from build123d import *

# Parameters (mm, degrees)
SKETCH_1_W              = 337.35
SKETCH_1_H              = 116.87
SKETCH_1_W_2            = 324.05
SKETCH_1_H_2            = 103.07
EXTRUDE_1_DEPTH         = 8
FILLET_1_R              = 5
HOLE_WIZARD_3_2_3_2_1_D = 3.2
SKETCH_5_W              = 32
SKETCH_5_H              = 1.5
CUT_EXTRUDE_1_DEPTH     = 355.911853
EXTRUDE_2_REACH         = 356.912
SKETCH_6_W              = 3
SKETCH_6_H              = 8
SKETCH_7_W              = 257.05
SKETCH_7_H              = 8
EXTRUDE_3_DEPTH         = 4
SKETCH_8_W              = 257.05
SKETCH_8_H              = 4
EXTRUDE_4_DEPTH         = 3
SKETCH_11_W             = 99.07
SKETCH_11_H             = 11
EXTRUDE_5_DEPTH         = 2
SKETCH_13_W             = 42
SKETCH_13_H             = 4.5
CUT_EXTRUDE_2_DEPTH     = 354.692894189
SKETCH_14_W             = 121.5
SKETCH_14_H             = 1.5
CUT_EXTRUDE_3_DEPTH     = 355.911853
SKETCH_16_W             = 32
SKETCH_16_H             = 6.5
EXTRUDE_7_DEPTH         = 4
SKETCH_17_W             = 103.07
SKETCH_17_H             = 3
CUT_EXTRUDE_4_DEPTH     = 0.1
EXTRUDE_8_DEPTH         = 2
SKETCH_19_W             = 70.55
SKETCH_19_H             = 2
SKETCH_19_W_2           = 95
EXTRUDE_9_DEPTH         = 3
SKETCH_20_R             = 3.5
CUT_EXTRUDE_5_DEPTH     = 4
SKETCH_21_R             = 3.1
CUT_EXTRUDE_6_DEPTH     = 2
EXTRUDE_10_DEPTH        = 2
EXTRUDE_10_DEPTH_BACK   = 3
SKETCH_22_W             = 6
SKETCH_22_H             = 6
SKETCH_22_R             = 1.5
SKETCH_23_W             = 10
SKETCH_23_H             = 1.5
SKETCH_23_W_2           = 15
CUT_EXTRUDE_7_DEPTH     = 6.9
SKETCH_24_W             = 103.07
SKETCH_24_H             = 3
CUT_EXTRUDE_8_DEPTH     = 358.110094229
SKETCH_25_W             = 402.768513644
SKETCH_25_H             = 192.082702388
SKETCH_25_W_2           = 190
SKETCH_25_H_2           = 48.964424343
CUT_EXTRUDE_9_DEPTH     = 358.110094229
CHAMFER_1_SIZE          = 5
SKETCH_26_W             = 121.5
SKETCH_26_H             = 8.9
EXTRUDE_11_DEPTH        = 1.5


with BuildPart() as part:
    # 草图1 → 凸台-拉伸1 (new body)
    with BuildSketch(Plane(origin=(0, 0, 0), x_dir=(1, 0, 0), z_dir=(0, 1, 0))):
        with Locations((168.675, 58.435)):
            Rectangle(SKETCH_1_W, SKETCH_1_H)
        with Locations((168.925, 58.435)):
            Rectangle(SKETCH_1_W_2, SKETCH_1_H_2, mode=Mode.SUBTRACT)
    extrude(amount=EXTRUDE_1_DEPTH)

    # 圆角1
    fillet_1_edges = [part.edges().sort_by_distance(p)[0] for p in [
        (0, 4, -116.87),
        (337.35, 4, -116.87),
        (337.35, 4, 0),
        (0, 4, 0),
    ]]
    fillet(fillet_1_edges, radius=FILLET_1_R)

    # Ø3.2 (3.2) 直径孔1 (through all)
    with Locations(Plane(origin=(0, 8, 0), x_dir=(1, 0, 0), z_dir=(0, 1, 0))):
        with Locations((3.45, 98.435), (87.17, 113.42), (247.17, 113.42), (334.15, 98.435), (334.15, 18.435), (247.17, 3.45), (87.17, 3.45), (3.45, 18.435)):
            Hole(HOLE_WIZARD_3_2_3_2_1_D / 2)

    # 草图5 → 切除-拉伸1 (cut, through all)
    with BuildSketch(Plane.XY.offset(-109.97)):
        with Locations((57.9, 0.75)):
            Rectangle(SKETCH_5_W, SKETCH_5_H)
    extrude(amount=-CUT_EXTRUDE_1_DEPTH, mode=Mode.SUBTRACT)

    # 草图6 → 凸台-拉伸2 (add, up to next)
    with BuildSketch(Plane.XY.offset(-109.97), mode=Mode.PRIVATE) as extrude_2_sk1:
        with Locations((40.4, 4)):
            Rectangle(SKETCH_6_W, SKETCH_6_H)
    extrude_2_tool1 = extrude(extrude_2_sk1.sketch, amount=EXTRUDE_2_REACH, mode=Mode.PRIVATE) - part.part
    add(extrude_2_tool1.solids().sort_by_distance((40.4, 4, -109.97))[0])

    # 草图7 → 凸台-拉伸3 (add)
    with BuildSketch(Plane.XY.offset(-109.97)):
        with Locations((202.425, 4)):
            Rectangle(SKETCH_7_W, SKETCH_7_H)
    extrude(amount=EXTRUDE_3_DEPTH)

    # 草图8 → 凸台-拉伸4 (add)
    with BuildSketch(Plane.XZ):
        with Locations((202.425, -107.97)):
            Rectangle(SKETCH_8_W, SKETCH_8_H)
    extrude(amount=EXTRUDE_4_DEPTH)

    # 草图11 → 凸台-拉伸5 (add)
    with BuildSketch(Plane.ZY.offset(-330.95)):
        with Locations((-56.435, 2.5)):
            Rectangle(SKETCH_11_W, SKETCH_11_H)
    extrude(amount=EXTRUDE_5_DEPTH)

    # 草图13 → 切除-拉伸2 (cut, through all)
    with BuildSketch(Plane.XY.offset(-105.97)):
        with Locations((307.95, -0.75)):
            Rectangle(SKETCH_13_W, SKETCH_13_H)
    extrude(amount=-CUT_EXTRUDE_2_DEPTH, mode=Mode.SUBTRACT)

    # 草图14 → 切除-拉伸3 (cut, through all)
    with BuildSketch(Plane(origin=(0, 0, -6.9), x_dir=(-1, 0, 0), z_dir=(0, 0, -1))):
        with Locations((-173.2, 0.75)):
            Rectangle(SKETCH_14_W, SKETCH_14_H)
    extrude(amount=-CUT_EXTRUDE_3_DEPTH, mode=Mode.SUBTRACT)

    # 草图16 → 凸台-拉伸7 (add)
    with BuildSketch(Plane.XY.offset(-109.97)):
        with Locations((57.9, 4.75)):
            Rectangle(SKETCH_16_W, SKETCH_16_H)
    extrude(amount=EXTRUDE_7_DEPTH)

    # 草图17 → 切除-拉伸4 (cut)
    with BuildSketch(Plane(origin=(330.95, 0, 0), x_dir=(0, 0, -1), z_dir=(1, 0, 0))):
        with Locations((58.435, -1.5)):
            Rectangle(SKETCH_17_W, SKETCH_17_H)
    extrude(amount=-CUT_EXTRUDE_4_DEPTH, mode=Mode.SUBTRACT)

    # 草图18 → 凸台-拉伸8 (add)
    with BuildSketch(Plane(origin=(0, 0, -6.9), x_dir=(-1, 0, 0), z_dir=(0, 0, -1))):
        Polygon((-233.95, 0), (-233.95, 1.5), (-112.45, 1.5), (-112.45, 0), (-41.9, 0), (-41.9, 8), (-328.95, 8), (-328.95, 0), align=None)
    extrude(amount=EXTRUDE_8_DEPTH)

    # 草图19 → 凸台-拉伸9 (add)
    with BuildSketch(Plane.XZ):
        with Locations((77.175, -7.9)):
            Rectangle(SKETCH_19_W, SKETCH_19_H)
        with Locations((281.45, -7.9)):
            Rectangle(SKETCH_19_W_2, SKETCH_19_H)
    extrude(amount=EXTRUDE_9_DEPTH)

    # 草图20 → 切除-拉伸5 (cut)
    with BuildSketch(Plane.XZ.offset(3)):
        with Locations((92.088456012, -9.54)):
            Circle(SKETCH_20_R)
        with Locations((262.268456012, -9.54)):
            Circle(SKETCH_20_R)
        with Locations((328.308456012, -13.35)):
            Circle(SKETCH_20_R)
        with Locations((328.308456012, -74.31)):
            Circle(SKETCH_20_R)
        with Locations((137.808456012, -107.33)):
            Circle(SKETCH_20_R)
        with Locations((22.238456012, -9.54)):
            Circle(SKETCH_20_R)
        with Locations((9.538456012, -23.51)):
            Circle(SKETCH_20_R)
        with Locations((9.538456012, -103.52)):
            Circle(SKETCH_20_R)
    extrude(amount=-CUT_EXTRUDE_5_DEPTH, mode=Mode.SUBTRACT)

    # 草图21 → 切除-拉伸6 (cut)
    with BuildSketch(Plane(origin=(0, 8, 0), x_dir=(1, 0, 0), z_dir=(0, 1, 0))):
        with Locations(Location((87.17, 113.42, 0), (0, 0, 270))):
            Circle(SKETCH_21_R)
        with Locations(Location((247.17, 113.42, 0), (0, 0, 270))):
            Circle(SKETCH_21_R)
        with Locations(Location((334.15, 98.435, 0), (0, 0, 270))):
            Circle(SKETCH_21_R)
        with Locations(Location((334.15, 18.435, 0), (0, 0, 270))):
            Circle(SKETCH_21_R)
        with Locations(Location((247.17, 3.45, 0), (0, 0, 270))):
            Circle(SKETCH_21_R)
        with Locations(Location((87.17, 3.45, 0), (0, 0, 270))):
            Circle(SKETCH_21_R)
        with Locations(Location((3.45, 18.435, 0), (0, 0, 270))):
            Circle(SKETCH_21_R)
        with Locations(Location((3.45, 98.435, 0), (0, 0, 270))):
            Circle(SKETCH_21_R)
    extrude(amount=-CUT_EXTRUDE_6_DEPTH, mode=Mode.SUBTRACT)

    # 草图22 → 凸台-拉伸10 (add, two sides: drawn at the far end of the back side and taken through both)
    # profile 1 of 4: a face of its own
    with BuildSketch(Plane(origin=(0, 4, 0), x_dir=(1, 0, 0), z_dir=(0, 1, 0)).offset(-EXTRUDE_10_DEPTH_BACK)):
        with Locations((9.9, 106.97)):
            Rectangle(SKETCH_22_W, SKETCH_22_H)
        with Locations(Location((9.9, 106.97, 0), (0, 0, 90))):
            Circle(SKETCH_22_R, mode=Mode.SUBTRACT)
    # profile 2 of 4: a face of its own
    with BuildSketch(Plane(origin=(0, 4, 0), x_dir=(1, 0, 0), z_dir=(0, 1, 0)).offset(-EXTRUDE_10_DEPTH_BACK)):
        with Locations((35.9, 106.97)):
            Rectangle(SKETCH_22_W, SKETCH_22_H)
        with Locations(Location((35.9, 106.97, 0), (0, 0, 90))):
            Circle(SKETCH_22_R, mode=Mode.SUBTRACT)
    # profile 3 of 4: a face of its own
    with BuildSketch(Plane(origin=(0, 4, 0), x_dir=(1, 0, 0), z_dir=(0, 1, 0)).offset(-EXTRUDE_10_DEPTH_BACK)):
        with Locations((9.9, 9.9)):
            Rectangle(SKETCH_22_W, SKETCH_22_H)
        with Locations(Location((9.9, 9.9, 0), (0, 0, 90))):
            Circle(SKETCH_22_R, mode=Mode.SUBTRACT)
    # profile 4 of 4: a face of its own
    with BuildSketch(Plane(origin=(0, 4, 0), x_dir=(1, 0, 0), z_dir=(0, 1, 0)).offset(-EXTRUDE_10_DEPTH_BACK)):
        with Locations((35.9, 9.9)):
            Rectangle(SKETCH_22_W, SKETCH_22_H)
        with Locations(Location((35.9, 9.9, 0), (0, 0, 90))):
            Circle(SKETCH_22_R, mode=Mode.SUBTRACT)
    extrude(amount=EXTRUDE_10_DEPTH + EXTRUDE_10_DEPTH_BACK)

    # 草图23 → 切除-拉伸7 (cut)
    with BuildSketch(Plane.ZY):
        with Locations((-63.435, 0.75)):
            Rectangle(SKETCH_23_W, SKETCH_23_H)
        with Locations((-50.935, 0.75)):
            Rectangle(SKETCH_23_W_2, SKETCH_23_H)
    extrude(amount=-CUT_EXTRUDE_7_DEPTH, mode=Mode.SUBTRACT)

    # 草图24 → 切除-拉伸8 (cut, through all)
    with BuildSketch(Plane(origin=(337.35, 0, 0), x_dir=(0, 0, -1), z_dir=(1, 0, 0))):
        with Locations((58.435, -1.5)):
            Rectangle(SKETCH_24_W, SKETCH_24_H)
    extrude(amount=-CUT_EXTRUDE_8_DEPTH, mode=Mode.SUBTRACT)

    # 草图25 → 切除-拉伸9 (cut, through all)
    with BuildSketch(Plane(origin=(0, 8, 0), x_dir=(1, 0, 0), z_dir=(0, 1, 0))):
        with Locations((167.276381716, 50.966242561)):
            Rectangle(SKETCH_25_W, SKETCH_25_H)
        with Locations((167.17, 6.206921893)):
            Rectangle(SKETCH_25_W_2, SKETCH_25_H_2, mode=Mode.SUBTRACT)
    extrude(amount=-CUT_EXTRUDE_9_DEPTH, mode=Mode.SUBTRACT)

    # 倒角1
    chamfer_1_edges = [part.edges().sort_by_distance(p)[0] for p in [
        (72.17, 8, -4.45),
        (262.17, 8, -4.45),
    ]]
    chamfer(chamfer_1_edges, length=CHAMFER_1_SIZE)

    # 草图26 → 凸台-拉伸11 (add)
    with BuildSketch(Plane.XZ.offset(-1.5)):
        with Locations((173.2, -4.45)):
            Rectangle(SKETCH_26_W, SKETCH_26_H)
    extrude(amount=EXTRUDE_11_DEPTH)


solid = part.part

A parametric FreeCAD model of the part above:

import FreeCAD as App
import Part
import Sketcher

V = App.Vector


def edges_at(feature, points):
    """Names of the edges that pass closest to the given points."""
    edges = feature.Shape.Edges
    near = lambda p: min(range(len(edges)), key=lambda i: edges[i].distToShape(Part.Vertex(*p))[0])
    return sorted({f"Edge{near(p) + 1}" for p in points})

doc = App.newDocument("Part")
body = doc.addObject("PartDesign::Body", "Body")

# Sketch on XZ plane
sketch1 = body.newObject("Sketcher::SketchObject", "Sketch")
sketch1.AttachmentSupport = (doc.getObject("XZ_Plane"), [""])
sketch1.MapMode = "FlatFace"
sketch1.addGeometry(Part.LineSegment(V(0, -116.87, 0), V(0, 0, 0)), False)
sketch1.addGeometry(Part.LineSegment(V(0, 0, 0), V(337.35, 0, 0)), False)
sketch1.addGeometry(Part.LineSegment(V(337.35, 0, 0), V(337.35, -116.87, 0)), False)
sketch1.addGeometry(Part.LineSegment(V(337.35, -116.87, 0), V(0, -116.87, 0)), False)
sketch1.addGeometry(Part.LineSegment(V(330.95, -6.9, 0), V(6.9, -6.9, 0)), False)
sketch1.addGeometry(Part.LineSegment(V(6.9, -6.9, 0), V(6.9, -109.97, 0)), False)
sketch1.addGeometry(Part.LineSegment(V(6.9, -109.97, 0), V(330.95, -109.97, 0)), False)
sketch1.addGeometry(Part.LineSegment(V(330.95, -109.97, 0), V(330.95, -6.9, 0)), False)
sketch1.addConstraint(Sketcher.Constraint("Coincident", 0, 2, 1, 1))
sketch1.addConstraint(Sketcher.Constraint("Coincident", 1, 2, 2, 1))
sketch1.addConstraint(Sketcher.Constraint("Coincident", 2, 2, 3, 1))
sketch1.addConstraint(Sketcher.Constraint("Coincident", 3, 2, 0, 1))
sketch1.addConstraint(Sketcher.Constraint("Coincident", 4, 2, 5, 1))
sketch1.addConstraint(Sketcher.Constraint("Coincident", 5, 2, 6, 1))
sketch1.addConstraint(Sketcher.Constraint("Coincident", 6, 2, 7, 1))
sketch1.addConstraint(Sketcher.Constraint("Coincident", 7, 2, 4, 1))
sketch1.addConstraint(Sketcher.Constraint("Vertical", 0))
sketch1.addConstraint(Sketcher.Constraint("Horizontal", 1))
sketch1.addConstraint(Sketcher.Constraint("Vertical", 2))
sketch1.addConstraint(Sketcher.Constraint("Horizontal", 3))
sketch1.addConstraint(Sketcher.Constraint("Horizontal", 4))
sketch1.addConstraint(Sketcher.Constraint("Vertical", 5))
sketch1.addConstraint(Sketcher.Constraint("Horizontal", 6))
sketch1.addConstraint(Sketcher.Constraint("Vertical", 7))
sketch1.addConstraint(Sketcher.Constraint("Coincident", 0, 2, -1, 1))
sketch1.addConstraint(Sketcher.Constraint("DistanceX", 1, 1, 1, 2, 337.35))
sketch1.addConstraint(Sketcher.Constraint("DistanceX", 4, 2, 4, 1, 324.05))
sketch1.addConstraint(Sketcher.Constraint("DistanceY", 0, 1, 0, 2, 116.87))
sketch1.addConstraint(Sketcher.Constraint("DistanceY", 5, 2, 5, 1, 103.07))
sketch1.addConstraint(Sketcher.Constraint("DistanceX", -1, 1, 4, 2, 6.9))
sketch1.addConstraint(Sketcher.Constraint("DistanceY", 4, 2, -1, 1, 6.9))
pad1 = body.newObject("PartDesign::Pad", "Pad")
pad1.Profile = sketch1
pad1.Length = 8
pad1.Reversed = True
doc.recompute()

fillet = body.newObject("PartDesign::Fillet", "Fillet")
fillet.Base = (pad1, edges_at(pad1, [
    (0, 4, -116.87),
    (337.35, 4, -116.87),
    (337.35, 4, 0),
    (0, 4, 0),
]))
fillet.Radius = 5

# Sketch on XZ plane
sketch2 = body.newObject("Sketcher::SketchObject", "Sketch001")
sketch2.AttachmentSupport = (doc.getObject("XZ_Plane"), [""])
sketch2.MapMode = "FlatFace"
sketch2.AttachmentOffset = App.Placement(V(0, 0, -8), App.Rotation())
sketch2.addGeometry(Part.Circle(V(3.45, -98.435, 0), V(0, 0, 1), 1.6), False)
sketch2.addGeometry(Part.Circle(V(87.17, -113.42, 0), V(0, 0, 1), 1.6), False)
sketch2.addGeometry(Part.Circle(V(247.17, -113.42, 0), V(0, 0, 1), 1.6), False)
sketch2.addGeometry(Part.Circle(V(334.15, -98.435, 0), V(0, 0, 1), 1.6), False)
sketch2.addGeometry(Part.Circle(V(334.15, -18.435, 0), V(0, 0, 1), 1.6), False)
sketch2.addGeometry(Part.Circle(V(247.17, -3.45, 0), V(0, 0, 1), 1.6), False)
sketch2.addGeometry(Part.Circle(V(87.17, -3.45, 0), V(0, 0, 1), 1.6), False)
sketch2.addGeometry(Part.Circle(V(3.45, -18.435, 0), V(0, 0, 1), 1.6), False)
sketch2.addConstraint(Sketcher.Constraint("Equal", 0, 1))
sketch2.addConstraint(Sketcher.Constraint("Equal", 1, 2))
sketch2.addConstraint(Sketcher.Constraint("Equal", 2, 3))
sketch2.addConstraint(Sketcher.Constraint("Equal", 3, 4))
sketch2.addConstraint(Sketcher.Constraint("Equal", 4, 5))
sketch2.addConstraint(Sketcher.Constraint("Equal", 5, 6))
sketch2.addConstraint(Sketcher.Constraint("Equal", 6, 7))
sketch2.addConstraint(Sketcher.Constraint("Horizontal", 1, 3, 2, 3))
sketch2.addConstraint(Sketcher.Constraint("Horizontal", 0, 3, 3, 3))
sketch2.addConstraint(Sketcher.Constraint("Horizontal", 5, 3, 6, 3))
sketch2.addConstraint(Sketcher.Constraint("Horizontal", 4, 3, 7, 3))
sketch2.addConstraint(Sketcher.Constraint("Vertical", 3, 3, 4, 3))
sketch2.addConstraint(Sketcher.Constraint("Vertical", 2, 3, 5, 3))
sketch2.addConstraint(Sketcher.Constraint("Vertical", 1, 3, 6, 3))
sketch2.addConstraint(Sketcher.Constraint("Vertical", 0, 3, 7, 3))
sketch2.addConstraint(Sketcher.Constraint("Diameter", 0, 3.2))
sketch2.addConstraint(Sketcher.Constraint("DistanceX", 1, 3, 2, 3, 160.0))
sketch2.addConstraint(Sketcher.Constraint("DistanceY", 3, 3, 4, 3, 80.0))
sketch2.addConstraint(Sketcher.Constraint("DistanceX", 0, 3, 3, 3, 330.7))
sketch2.addConstraint(Sketcher.Constraint("DistanceX", -1, 1, 0, 3, 3.45))
sketch2.addConstraint(Sketcher.Constraint("DistanceX", -1, 1, 1, 3, 87.17))
sketch2.addConstraint(Sketcher.Constraint("DistanceY", 1, 3, -1, 1, 113.42))
sketch2.addConstraint(Sketcher.Constraint("DistanceY", 5, 3, -1, 1, 3.45))
sketch2.addConstraint(Sketcher.Constraint("DistanceY", 0, 3, -1, 1, 98.435))
doc.recompute()
hole = body.newObject("PartDesign::Hole", "Hole")
hole.Profile = sketch2
hole.ThreadType = "None"
hole.Diameter = 3.2
hole.DepthType = "ThroughAll"
hole.Reversed = True

# Sketch on XY plane
sketch3 = body.newObject("Sketcher::SketchObject", "Sketch002")
sketch3.AttachmentSupport = (doc.getObject("XY_Plane"), [""])
sketch3.MapMode = "FlatFace"
sketch3.AttachmentOffset = App.Placement(V(0, 0, -109.97), App.Rotation())
sketch3.addGeometry(Part.LineSegment(V(41.9, 1.5, 0), V(41.9, 0, 0)), False)
sketch3.addGeometry(Part.LineSegment(V(41.9, 0, 0), V(73.9, 0, 0)), False)
sketch3.addGeometry(Part.LineSegment(V(73.9, 0, 0), V(73.9, 1.5, 0)), False)
sketch3.addGeometry(Part.LineSegment(V(73.9, 1.5, 0), V(41.9, 1.5, 0)), False)
sketch3.addConstraint(Sketcher.Constraint("Coincident", 0, 2, 1, 1))
sketch3.addConstraint(Sketcher.Constraint("Coincident", 1, 2, 2, 1))
sketch3.addConstraint(Sketcher.Constraint("Coincident", 2, 2, 3, 1))
sketch3.addConstraint(Sketcher.Constraint("Coincident", 3, 2, 0, 1))
sketch3.addConstraint(Sketcher.Constraint("Vertical", 0))
sketch3.addConstraint(Sketcher.Constraint("Horizontal", 1))
sketch3.addConstraint(Sketcher.Constraint("Vertical", 2))
sketch3.addConstraint(Sketcher.Constraint("Horizontal", 3))
sketch3.addConstraint(Sketcher.Constraint("PointOnObject", 0, 2, -1))
sketch3.addConstraint(Sketcher.Constraint("DistanceX", 1, 1, 1, 2, 32.0))
sketch3.addConstraint(Sketcher.Constraint("DistanceY", 0, 2, 0, 1, 1.5))
sketch3.addConstraint(Sketcher.Constraint("DistanceX", -1, 1, 0, 2, 41.9))
pocket1 = body.newObject("PartDesign::Pocket", "Pocket")
pocket1.Profile = sketch3
pocket1.Type = "ThroughAll"

# Sketch on XY plane
sketch4 = body.newObject("Sketcher::SketchObject", "Sketch003")
sketch4.AttachmentSupport = (doc.getObject("XY_Plane"), [""])
sketch4.MapMode = "FlatFace"
sketch4.AttachmentOffset = App.Placement(V(0, 0, -109.97), App.Rotation())
sketch4.addGeometry(Part.LineSegment(V(38.9, 8, 0), V(38.9, 0, 0)), False)
sketch4.addGeometry(Part.LineSegment(V(38.9, 0, 0), V(41.9, 0, 0)), False)
sketch4.addGeometry(Part.LineSegment(V(41.9, 0, 0), V(41.9, 8, 0)), False)
sketch4.addGeometry(Part.LineSegment(V(41.9, 8, 0), V(38.9, 8, 0)), False)
sketch4.addConstraint(Sketcher.Constraint("Coincident", 0, 2, 1, 1))
sketch4.addConstraint(Sketcher.Constraint("Coincident", 1, 2, 2, 1))
sketch4.addConstraint(Sketcher.Constraint("Coincident", 2, 2, 3, 1))
sketch4.addConstraint(Sketcher.Constraint("Coincident", 3, 2, 0, 1))
sketch4.addConstraint(Sketcher.Constraint("Vertical", 0))
sketch4.addConstraint(Sketcher.Constraint("Horizontal", 1))
sketch4.addConstraint(Sketcher.Constraint("Vertical", 2))
sketch4.addConstraint(Sketcher.Constraint("Horizontal", 3))
sketch4.addConstraint(Sketcher.Constraint("PointOnObject", 0, 2, -1))
sketch4.addConstraint(Sketcher.Constraint("DistanceX", 1, 1, 1, 2, 3.0))
sketch4.addConstraint(Sketcher.Constraint("DistanceY", 0, 2, 0, 1, 8.0))
sketch4.addConstraint(Sketcher.Constraint("DistanceX", -1, 1, 0, 2, 38.9))
pad2 = body.newObject("PartDesign::Pad", "Pad001")
pad2.Profile = sketch4
pad2.Type = "UpToFirst"

# Sketch on XY plane
sketch5 = body.newObject("Sketcher::SketchObject", "Sketch004")
sketch5.AttachmentSupport = (doc.getObject("XY_Plane"), [""])
sketch5.MapMode = "FlatFace"
sketch5.AttachmentOffset = App.Placement(V(0, 0, -109.97), App.Rotation())
sketch5.addGeometry(Part.LineSegment(V(73.9, 8, 0), V(73.9, 0, 0)), False)
sketch5.addGeometry(Part.LineSegment(V(73.9, 0, 0), V(330.95, 0, 0)), False)
sketch5.addGeometry(Part.LineSegment(V(330.95, 0, 0), V(330.95, 8, 0)), False)
sketch5.addGeometry(Part.LineSegment(V(330.95, 8, 0), V(73.9, 8, 0)), False)
sketch5.addConstraint(Sketcher.Constraint("Coincident", 0, 2, 1, 1))
sketch5.addConstraint(Sketcher.Constraint("Coincident", 1, 2, 2, 1))
sketch5.addConstraint(Sketcher.Constraint("Coincident", 2, 2, 3, 1))
sketch5.addConstraint(Sketcher.Constraint("Coincident", 3, 2, 0, 1))
sketch5.addConstraint(Sketcher.Constraint("Vertical", 0))
sketch5.addConstraint(Sketcher.Constraint("Horizontal", 1))
sketch5.addConstraint(Sketcher.Constraint("Vertical", 2))
sketch5.addConstraint(Sketcher.Constraint("Horizontal", 3))
sketch5.addConstraint(Sketcher.Constraint("PointOnObject", 0, 2, -1))
sketch5.addConstraint(Sketcher.Constraint("DistanceY", 0, 2, 0, 1, 8.0))
sketch5.addConstraint(Sketcher.Constraint("DistanceX", 1, 1, 1, 2, 257.05))
sketch5.addConstraint(Sketcher.Constraint("DistanceX", -1, 1, 0, 2, 73.9))
pad3 = body.newObject("PartDesign::Pad", "Pad002")
pad3.Profile = sketch5
pad3.Length = 4

# Sketch on XZ plane
sketch6 = body.newObject("Sketcher::SketchObject", "Sketch005")
sketch6.AttachmentSupport = (doc.getObject("XZ_Plane"), [""])
sketch6.MapMode = "FlatFace"
sketch6.addGeometry(Part.LineSegment(V(73.9, -105.97, 0), V(73.9, -109.97, 0)), False)
sketch6.addGeometry(Part.LineSegment(V(73.9, -109.97, 0), V(330.95, -109.97, 0)), False)
sketch6.addGeometry(Part.LineSegment(V(330.95, -109.97, 0), V(330.95, -105.97, 0)), False)
sketch6.addGeometry(Part.LineSegment(V(330.95, -105.97, 0), V(73.9, -105.97, 0)), False)
sketch6.addConstraint(Sketcher.Constraint("Coincident", 0, 2, 1, 1))
sketch6.addConstraint(Sketcher.Constraint("Coincident", 1, 2, 2, 1))
sketch6.addConstraint(Sketcher.Constraint("Coincident", 2, 2, 3, 1))
sketch6.addConstraint(Sketcher.Constraint("Coincident", 3, 2, 0, 1))
sketch6.addConstraint(Sketcher.Constraint("Vertical", 0))
sketch6.addConstraint(Sketcher.Constraint("Horizontal", 1))
sketch6.addConstraint(Sketcher.Constraint("Vertical", 2))
sketch6.addConstraint(Sketcher.Constraint("Horizontal", 3))
sketch6.addConstraint(Sketcher.Constraint("DistanceY", 0, 2, 0, 1, 4.0))
sketch6.addConstraint(Sketcher.Constraint("DistanceX", 1, 1, 1, 2, 257.05))
sketch6.addConstraint(Sketcher.Constraint("DistanceX", -1, 1, 0, 2, 73.9))
sketch6.addConstraint(Sketcher.Constraint("DistanceY", 0, 2, -1, 1, 109.97))
pad4 = body.newObject("PartDesign::Pad", "Pad003")
pad4.Profile = sketch6
pad4.Length = 3

# Sketch on YZ plane
sketch7 = body.newObject("Sketcher::SketchObject", "Sketch006")
sketch7.AttachmentSupport = (doc.getObject("YZ_Plane"), [""])
sketch7.MapMode = "FlatFace"
sketch7.AttachmentOffset = App.Placement(V(0, 0, 330.95), App.Rotation())
sketch7.addGeometry(Part.LineSegment(V(8, -105.97, 0), V(-3, -105.97, 0)), False)
sketch7.addGeometry(Part.LineSegment(V(-3, -105.97, 0), V(-3, -6.9, 0)), False)
sketch7.addGeometry(Part.LineSegment(V(-3, -6.9, 0), V(8, -6.9, 0)), False)
sketch7.addGeometry(Part.LineSegment(V(8, -6.9, 0), V(8, -105.97, 0)), False)
sketch7.addConstraint(Sketcher.Constraint("Coincident", 0, 2, 1, 1))
sketch7.addConstraint(Sketcher.Constraint("Coincident", 1, 2, 2, 1))
sketch7.addConstraint(Sketcher.Constraint("Coincident", 2, 2, 3, 1))
sketch7.addConstraint(Sketcher.Constraint("Coincident", 3, 2, 0, 1))
sketch7.addConstraint(Sketcher.Constraint("Horizontal", 0))
sketch7.addConstraint(Sketcher.Constraint("Vertical", 1))
sketch7.addConstraint(Sketcher.Constraint("Horizontal", 2))
sketch7.addConstraint(Sketcher.Constraint("Vertical", 3))
sketch7.addConstraint(Sketcher.Constraint("DistanceX", 0, 2, 0, 1, 11.0))
sketch7.addConstraint(Sketcher.Constraint("DistanceX", 0, 2, -1, 1, 3.0))
sketch7.addConstraint(Sketcher.Constraint("DistanceY", 1, 1, 1, 2, 99.07))
sketch7.addConstraint(Sketcher.Constraint("DistanceY", 1, 2, -1, 1, 6.9))
pad5 = body.newObject("PartDesign::Pad", "Pad004")
pad5.Profile = sketch7
pad5.Length = 2
pad5.Reversed = True

# Sketch on XY plane
sketch8 = body.newObject("Sketcher::SketchObject", "Sketch007")
sketch8.AttachmentSupport = (doc.getObject("XY_Plane"), [""])
sketch8.MapMode = "FlatFace"
sketch8.AttachmentOffset = App.Placement(V(0, 0, -105.97), App.Rotation())
sketch8.addGeometry(Part.LineSegment(V(286.95, 1.5, 0), V(286.95, -3, 0)), False)
sketch8.addGeometry(Part.LineSegment(V(286.95, -3, 0), V(328.95, -3, 0)), False)
sketch8.addGeometry(Part.LineSegment(V(328.95, -3, 0), V(328.95, 1.5, 0)), False)
sketch8.addGeometry(Part.LineSegment(V(328.95, 1.5, 0), V(286.95, 1.5, 0)), False)
sketch8.addConstraint(Sketcher.Constraint("Coincident", 0, 2, 1, 1))
sketch8.addConstraint(Sketcher.Constraint("Coincident", 1, 2, 2, 1))
sketch8.addConstraint(Sketcher.Constraint("Coincident", 2, 2, 3, 1))
sketch8.addConstraint(Sketcher.Constraint("Coincident", 3, 2, 0, 1))
sketch8.addConstraint(Sketcher.Constraint("Vertical", 0))
sketch8.addConstraint(Sketcher.Constraint("Horizontal", 1))
sketch8.addConstraint(Sketcher.Constraint("Vertical", 2))
sketch8.addConstraint(Sketcher.Constraint("Horizontal", 3))
sketch8.addConstraint(Sketcher.Constraint("DistanceX", 1, 1, 1, 2, 42.0))
sketch8.addConstraint(Sketcher.Constraint("DistanceY", 0, 2, 0, 1, 4.5))
sketch8.addConstraint(Sketcher.Constraint("DistanceY", 0, 2, -1, 1, 3.0))
sketch8.addConstraint(Sketcher.Constraint("DistanceX", -1, 1, 0, 2, 286.95))
pocket2 = body.newObject("PartDesign::Pocket", "Pocket001")
pocket2.Profile = sketch8
pocket2.Type = "ThroughAll"

# Sketch on XY plane
sketch9 = body.newObject("Sketcher::SketchObject", "Sketch008")
sketch9.AttachmentSupport = (doc.getObject("XY_Plane"), [""])
sketch9.MapMode = "FlatFace"
sketch9.AttachmentOffset = App.Placement(V(0, 0, -6.9), App.Rotation())
sketch9.addGeometry(Part.LineSegment(V(233.95, 1.5, 0), V(233.95, 0, 0)), False)
sketch9.addGeometry(Part.LineSegment(V(233.95, 0, 0), V(112.45, 0, 0)), False)
sketch9.addGeometry(Part.LineSegment(V(112.45, 0, 0), V(112.45, 1.5, 0)), False)
sketch9.addGeometry(Part.LineSegment(V(112.45, 1.5, 0), V(233.95, 1.5, 0)), False)
sketch9.addConstraint(Sketcher.Constraint("Coincident", 0, 2, 1, 1))
sketch9.addConstraint(Sketcher.Constraint("Coincident", 1, 2, 2, 1))
sketch9.addConstraint(Sketcher.Constraint("Coincident", 2, 2, 3, 1))
sketch9.addConstraint(Sketcher.Constraint("Coincident", 3, 2, 0, 1))
sketch9.addConstraint(Sketcher.Constraint("Vertical", 0))
sketch9.addConstraint(Sketcher.Constraint("Horizontal", 1))
sketch9.addConstraint(Sketcher.Constraint("Vertical", 2))
sketch9.addConstraint(Sketcher.Constraint("Horizontal", 3))
sketch9.addConstraint(Sketcher.Constraint("PointOnObject", 0, 2, -1))
sketch9.addConstraint(Sketcher.Constraint("DistanceX", 1, 2, 1, 1, 121.5))
sketch9.addConstraint(Sketcher.Constraint("DistanceY", 0, 2, 0, 1, 1.5))
sketch9.addConstraint(Sketcher.Constraint("DistanceX", -1, 1, 0, 2, 233.95))
pocket3 = body.newObject("PartDesign::Pocket", "Pocket002")
pocket3.Profile = sketch9
pocket3.Type = "ThroughAll"
pocket3.Reversed = True

# Sketch on XY plane
sketch10 = body.newObject("Sketcher::SketchObject", "Sketch009")
sketch10.AttachmentSupport = (doc.getObject("XY_Plane"), [""])
sketch10.MapMode = "FlatFace"
sketch10.AttachmentOffset = App.Placement(V(0, 0, -109.97), App.Rotation())
sketch10.addGeometry(Part.LineSegment(V(41.9, 8, 0), V(41.9, 1.5, 0)), False)
sketch10.addGeometry(Part.LineSegment(V(41.9, 1.5, 0), V(73.9, 1.5, 0)), False)
sketch10.addGeometry(Part.LineSegment(V(73.9, 1.5, 0), V(73.9, 8, 0)), False)
sketch10.addGeometry(Part.LineSegment(V(73.9, 8, 0), V(41.9, 8, 0)), False)
sketch10.addConstraint(Sketcher.Constraint("Coincident", 0, 2, 1, 1))
sketch10.addConstraint(Sketcher.Constraint("Coincident", 1, 2, 2, 1))
sketch10.addConstraint(Sketcher.Constraint("Coincident", 2, 2, 3, 1))
sketch10.addConstraint(Sketcher.Constraint("Coincident", 3, 2, 0, 1))
sketch10.addConstraint(Sketcher.Constraint("Vertical", 0))
sketch10.addConstraint(Sketcher.Constraint("Horizontal", 1))
sketch10.addConstraint(Sketcher.Constraint("Vertical", 2))
sketch10.addConstraint(Sketcher.Constraint("Horizontal", 3))
sketch10.addConstraint(Sketcher.Constraint("DistanceX", 1, 1, 1, 2, 32.0))
sketch10.addConstraint(Sketcher.Constraint("DistanceY", 0, 2, 0, 1, 6.5))
sketch10.addConstraint(Sketcher.Constraint("DistanceY", -1, 1, 2, 2, 8.0))
sketch10.addConstraint(Sketcher.Constraint("DistanceX", -1, 1, 0, 2, 41.9))
pad6 = body.newObject("PartDesign::Pad", "Pad005")
pad6.Profile = sketch10
pad6.Length = 4

# Sketch on YZ plane
sketch11 = body.newObject("Sketcher::SketchObject", "Sketch010")
sketch11.AttachmentSupport = (doc.getObject("YZ_Plane"), [""])
sketch11.MapMode = "FlatFace"
sketch11.AttachmentOffset = App.Placement(V(0, 0, 330.95), App.Rotation())
sketch11.addGeometry(Part.LineSegment(V(0, -6.9, 0), V(-3, -6.9, 0)), False)
sketch11.addGeometry(Part.LineSegment(V(-3, -6.9, 0), V(-3, -109.97, 0)), False)
sketch11.addGeometry(Part.LineSegment(V(-3, -109.97, 0), V(0, -109.97, 0)), False)
sketch11.addGeometry(Part.LineSegment(V(0, -109.97, 0), V(0, -6.9, 0)), False)
sketch11.addConstraint(Sketcher.Constraint("Coincident", 0, 2, 1, 1))
sketch11.addConstraint(Sketcher.Constraint("Coincident", 1, 2, 2, 1))
sketch11.addConstraint(Sketcher.Constraint("Coincident", 2, 2, 3, 1))
sketch11.addConstraint(Sketcher.Constraint("Coincident", 3, 2, 0, 1))
sketch11.addConstraint(Sketcher.Constraint("Horizontal", 0))
sketch11.addConstraint(Sketcher.Constraint("Vertical", 1))
sketch11.addConstraint(Sketcher.Constraint("Horizontal", 2))
sketch11.addConstraint(Sketcher.Constraint("Vertical", 3))
sketch11.addConstraint(Sketcher.Constraint("PointOnObject", 2, 2, -2))
sketch11.addConstraint(Sketcher.Constraint("DistanceX", 0, 2, 0, 1, 3.0))
sketch11.addConstraint(Sketcher.Constraint("DistanceY", 1, 2, 1, 1, 103.07))
sketch11.addConstraint(Sketcher.Constraint("DistanceY", 0, 2, -1, 1, 6.9))
pocket4 = body.newObject("PartDesign::Pocket", "Pocket003")
pocket4.Profile = sketch11
pocket4.Length = 0.1

# Sketch on XY plane
sketch12 = body.newObject("Sketcher::SketchObject", "Sketch011")
sketch12.AttachmentSupport = (doc.getObject("XY_Plane"), [""])
sketch12.MapMode = "FlatFace"
sketch12.AttachmentOffset = App.Placement(V(0, 0, -6.9), App.Rotation())
sketch12.addGeometry(Part.LineSegment(V(233.95, 0, 0), V(233.95, 1.5, 0)), False)
sketch12.addGeometry(Part.LineSegment(V(233.95, 1.5, 0), V(112.45, 1.5, 0)), False)
sketch12.addGeometry(Part.LineSegment(V(112.45, 1.5, 0), V(112.45, 0, 0)), False)
sketch12.addGeometry(Part.LineSegment(V(112.45, 0, 0), V(41.9, 0, 0)), False)
sketch12.addGeometry(Part.LineSegment(V(41.9, 0, 0), V(41.9, 8, 0)), False)
sketch12.addGeometry(Part.LineSegment(V(41.9, 8, 0), V(328.95, 8, 0)), False)
sketch12.addGeometry(Part.LineSegment(V(328.95, 8, 0), V(328.95, 0, 0)), False)
sketch12.addGeometry(Part.LineSegment(V(328.95, 0, 0), V(233.95, 0, 0)), False)
sketch12.addConstraint(Sketcher.Constraint("Coincident", 0, 2, 1, 1))
sketch12.addConstraint(Sketcher.Constraint("Coincident", 1, 2, 2, 1))
sketch12.addConstraint(Sketcher.Constraint("Coincident", 2, 2, 3, 1))
sketch12.addConstraint(Sketcher.Constraint("Coincident", 3, 2, 4, 1))
sketch12.addConstraint(Sketcher.Constraint("Coincident", 4, 2, 5, 1))
sketch12.addConstraint(Sketcher.Constraint("Coincident", 5, 2, 6, 1))
sketch12.addConstraint(Sketcher.Constraint("Coincident", 6, 2, 7, 1))
sketch12.addConstraint(Sketcher.Constraint("Coincident", 7, 2, 0, 1))
sketch12.addConstraint(Sketcher.Constraint("Vertical", 0))
sketch12.addConstraint(Sketcher.Constraint("Horizontal", 1))
sketch12.addConstraint(Sketcher.Constraint("Vertical", 2))
sketch12.addConstraint(Sketcher.Constraint("Horizontal", 3))
sketch12.addConstraint(Sketcher.Constraint("Vertical", 4))
sketch12.addConstraint(Sketcher.Constraint("Horizontal", 5))
sketch12.addConstraint(Sketcher.Constraint("Vertical", 6))
sketch12.addConstraint(Sketcher.Constraint("Horizontal", 7))
sketch12.addConstraint(Sketcher.Constraint("PointOnObject", 2, 2, -1))
sketch12.addConstraint(Sketcher.Constraint("PointOnObject", 6, 2, -1))
sketch12.addConstraint(Sketcher.Constraint("DistanceX", 7, 2, 7, 1, 95.0))
sketch12.addConstraint(Sketcher.Constraint("DistanceY", 4, 1, 4, 2, 8.0))
sketch12.addConstraint(Sketcher.Constraint("DistanceX", 1, 2, 1, 1, 121.5))
sketch12.addConstraint(Sketcher.Constraint("DistanceY", 0, 1, 0, 2, 1.5))
sketch12.addConstraint(Sketcher.Constraint("DistanceX", 3, 2, 3, 1, 70.55))
sketch12.addConstraint(Sketcher.Constraint("DistanceX", -1, 1, 3, 2, 41.9))
pad7 = body.newObject("PartDesign::Pad", "Pad006")
pad7.Profile = sketch12
pad7.Length = 2
pad7.Reversed = True

# Sketch on XZ plane
sketch13 = body.newObject("Sketcher::SketchObject", "Sketch012")
sketch13.AttachmentSupport = (doc.getObject("XZ_Plane"), [""])
sketch13.MapMode = "FlatFace"
sketch13.addGeometry(Part.LineSegment(V(41.9, -6.9, 0), V(41.9, -8.9, 0)), False)
sketch13.addGeometry(Part.LineSegment(V(41.9, -8.9, 0), V(112.45, -8.9, 0)), False)
sketch13.addGeometry(Part.LineSegment(V(112.45, -8.9, 0), V(112.45, -6.9, 0)), False)
sketch13.addGeometry(Part.LineSegment(V(112.45, -6.9, 0), V(41.9, -6.9, 0)), False)
sketch13.addGeometry(Part.LineSegment(V(233.95, -6.9, 0), V(233.95, -8.9, 0)), False)
sketch13.addGeometry(Part.LineSegment(V(233.95, -8.9, 0), V(328.95, -8.9, 0)), False)
sketch13.addGeometry(Part.LineSegment(V(328.95, -8.9, 0), V(328.95, -6.9, 0)), False)
sketch13.addGeometry(Part.LineSegment(V(328.95, -6.9, 0), V(233.95, -6.9, 0)), False)
sketch13.addConstraint(Sketcher.Constraint("Coincident", 0, 2, 1, 1))
sketch13.addConstraint(Sketcher.Constraint("Coincident", 1, 2, 2, 1))
sketch13.addConstraint(Sketcher.Constraint("Coincident", 2, 2, 3, 1))
sketch13.addConstraint(Sketcher.Constraint("Coincident", 3, 2, 0, 1))
sketch13.addConstraint(Sketcher.Constraint("Coincident", 4, 2, 5, 1))
sketch13.addConstraint(Sketcher.Constraint("Coincident", 5, 2, 6, 1))
sketch13.addConstraint(Sketcher.Constraint("Coincident", 6, 2, 7, 1))
sketch13.addConstraint(Sketcher.Constraint("Coincident", 7, 2, 4, 1))
sketch13.addConstraint(Sketcher.Constraint("Vertical", 0))
sketch13.addConstraint(Sketcher.Constraint("Horizontal", 1))
sketch13.addConstraint(Sketcher.Constraint("Vertical", 2))
sketch13.addConstraint(Sketcher.Constraint("Horizontal", 3))
sketch13.addConstraint(Sketcher.Constraint("Vertical", 4))
sketch13.addConstraint(Sketcher.Constraint("Horizontal", 5))
sketch13.addConstraint(Sketcher.Constraint("Vertical", 6))
sketch13.addConstraint(Sketcher.Constraint("Horizontal", 7))
sketch13.addConstraint(Sketcher.Constraint("Horizontal", 1, 2, 4, 2))
sketch13.addConstraint(Sketcher.Constraint("Horizontal", 3, 2, 6, 2))
sketch13.addConstraint(Sketcher.Constraint("DistanceX", 5, 1, 5, 2, 95.0))
sketch13.addConstraint(Sketcher.Constraint("DistanceY", 0, 2, 0, 1, 2.0))
sketch13.addConstraint(Sketcher.Constraint("DistanceX", 1, 1, 1, 2, 70.55))
sketch13.addConstraint(Sketcher.Constraint("DistanceX", -1, 1, 0, 2, 41.9))
sketch13.addConstraint(Sketcher.Constraint("DistanceY", 0, 2, -1, 1, 8.9))
sketch13.addConstraint(Sketcher.Constraint("DistanceX", 1, 2, 4, 2, 121.5))
pad8 = body.newObject("PartDesign::Pad", "Pad007")
pad8.Profile = sketch13
pad8.Length = 3

# Sketch on XZ plane
sketch14 = body.newObject("Sketcher::SketchObject", "Sketch013")
sketch14.AttachmentSupport = (doc.getObject("XZ_Plane"), [""])
sketch14.MapMode = "FlatFace"
sketch14.AttachmentOffset = App.Placement(V(0, 0, 3), App.Rotation())
sketch14.addGeometry(Part.Circle(V(92.088456, -9.54, 0), V(0, 0, 1), 3.5), False)
sketch14.addGeometry(Part.Circle(V(262.268456, -9.54, 0), V(0, 0, 1), 3.5), False)
sketch14.addGeometry(Part.Circle(V(328.308456, -13.35, 0), V(0, 0, 1), 3.5), False)
sketch14.addGeometry(Part.Circle(V(328.308456, -74.31, 0), V(0, 0, 1), 3.5), False)
sketch14.addGeometry(Part.Circle(V(137.808456, -107.33, 0), V(0, 0, 1), 3.5), False)
sketch14.addGeometry(Part.Circle(V(22.238456, -9.54, 0), V(0, 0, 1), 3.5), False)
sketch14.addGeometry(Part.Circle(V(9.538456, -23.51, 0), V(0, 0, 1), 3.5), False)
sketch14.addGeometry(Part.Circle(V(9.538456, -103.52, 0), V(0, 0, 1), 3.5), False)
sketch14.addConstraint(Sketcher.Constraint("Equal", 0, 1))
sketch14.addConstraint(Sketcher.Constraint("Equal", 1, 2))
sketch14.addConstraint(Sketcher.Constraint("Equal", 2, 3))
sketch14.addConstraint(Sketcher.Constraint("Equal", 3, 4))
sketch14.addConstraint(Sketcher.Constraint("Equal", 4, 5))
sketch14.addConstraint(Sketcher.Constraint("Equal", 5, 6))
sketch14.addConstraint(Sketcher.Constraint("Equal", 6, 7))
sketch14.addConstraint(Sketcher.Constraint("Horizontal", 0, 3, 1, 3))
sketch14.addConstraint(Sketcher.Constraint("Horizontal", 1, 3, 5, 3))
sketch14.addConstraint(Sketcher.Constraint("Vertical", 2, 3, 3, 3))
sketch14.addConstraint(Sketcher.Constraint("Vertical", 6, 3, 7, 3))
sketch14.addConstraint(Sketcher.Constraint("Diameter", 0, 7.0))
sketch14.addConstraint(Sketcher.Constraint("DistanceX", 4, 3, 3, 3, 190.5))
sketch14.addConstraint(Sketcher.Constraint("DistanceX", 6, 3, 5, 3, 12.7))
sketch14.addConstraint(Sketcher.Constraint("DistanceY", 0, 3, -1, 1, 9.54))
sketch14.addConstraint(Sketcher.Constraint("DistanceY", 2, 3, -1, 1, 13.35))
sketch14.addConstraint(Sketcher.Constraint("DistanceY", 3, 3, -1, 1, 74.31))
sketch14.addConstraint(Sketcher.Constraint("DistanceY", 4, 3, -1, 1, 107.33))
sketch14.addConstraint(Sketcher.Constraint("DistanceY", 6, 3, -1, 1, 23.51))
sketch14.addConstraint(Sketcher.Constraint("DistanceY", 7, 3, -1, 1, 103.52))
sketch14.addConstraint(Sketcher.Constraint("DistanceX", 0, 3, 1, 3, 170.18))
sketch14.addConstraint(Sketcher.Constraint("DistanceX", 1, 3, 2, 3, 66.04))
sketch14.addConstraint(Sketcher.Constraint("DistanceX", 5, 3, 0, 3, 69.85))
sketch14.addConstraint(Sketcher.Constraint("DistanceX", -1, 1, 0, 3, 92.088456))
pocket5 = body.newObject("PartDesign::Pocket", "Pocket004")
pocket5.Profile = sketch14
pocket5.Length = 4

# Sketch on XZ plane
sketch15 = body.newObject("Sketcher::SketchObject", "Sketch014")
sketch15.AttachmentSupport = (doc.getObject("XZ_Plane"), [""])
sketch15.MapMode = "FlatFace"
sketch15.AttachmentOffset = App.Placement(V(0, 0, -8), App.Rotation())
sketch15.addGeometry(Part.Circle(V(87.17, -113.42, 0), V(0, 0, 1), 3.1), False)
sketch15.addGeometry(Part.Circle(V(247.17, -113.42, 0), V(0, 0, 1), 3.1), False)
sketch15.addGeometry(Part.Circle(V(334.15, -98.435, 0), V(0, 0, 1), 3.1), False)
sketch15.addGeometry(Part.Circle(V(334.15, -18.435, 0), V(0, 0, 1), 3.1), False)
sketch15.addGeometry(Part.Circle(V(247.17, -3.45, 0), V(0, 0, 1), 3.1), False)
sketch15.addGeometry(Part.Circle(V(87.17, -3.45, 0), V(0, 0, 1), 3.1), False)
sketch15.addGeometry(Part.Circle(V(3.45, -18.435, 0), V(0, 0, 1), 3.1), False)
sketch15.addGeometry(Part.Circle(V(3.45, -98.435, 0), V(0, 0, 1), 3.1), False)
sketch15.addConstraint(Sketcher.Constraint("Equal", 0, 1))
sketch15.addConstraint(Sketcher.Constraint("Equal", 1, 2))
sketch15.addConstraint(Sketcher.Constraint("Equal", 2, 3))
sketch15.addConstraint(Sketcher.Constraint("Equal", 3, 4))
sketch15.addConstraint(Sketcher.Constraint("Equal", 4, 5))
sketch15.addConstraint(Sketcher.Constraint("Equal", 5, 6))
sketch15.addConstraint(Sketcher.Constraint("Equal", 6, 7))
sketch15.addConstraint(Sketcher.Constraint("Horizontal", 0, 3, 1, 3))
sketch15.addConstraint(Sketcher.Constraint("Horizontal", 4, 3, 5, 3))
sketch15.addConstraint(Sketcher.Constraint("Horizontal", 3, 3, 6, 3))
sketch15.addConstraint(Sketcher.Constraint("Horizontal", 2, 3, 7, 3))
sketch15.addConstraint(Sketcher.Constraint("Vertical", 2, 3, 3, 3))
sketch15.addConstraint(Sketcher.Constraint("Vertical", 1, 3, 4, 3))
sketch15.addConstraint(Sketcher.Constraint("Vertical", 0, 3, 5, 3))
sketch15.addConstraint(Sketcher.Constraint("Vertical", 6, 3, 7, 3))
sketch15.addConstraint(Sketcher.Constraint("Diameter", 0, 6.2))
sketch15.addConstraint(Sketcher.Constraint("DistanceX", 0, 3, 1, 3, 160.0))
sketch15.addConstraint(Sketcher.Constraint("DistanceY", 2, 3, 3, 3, 80.0))
sketch15.addConstraint(Sketcher.Constraint("DistanceX", 6, 3, 3, 3, 330.7))
sketch15.addConstraint(Sketcher.Constraint("DistanceX", -1, 1, 0, 3, 87.17))
sketch15.addConstraint(Sketcher.Constraint("DistanceY", 0, 3, -1, 1, 113.42))
sketch15.addConstraint(Sketcher.Constraint("DistanceX", -1, 1, 2, 3, 334.15))
sketch15.addConstraint(Sketcher.Constraint("DistanceY", 4, 3, -1, 1, 3.45))
sketch15.addConstraint(Sketcher.Constraint("DistanceY", 2, 3, -1, 1, 98.435))
pocket6 = body.newObject("PartDesign::Pocket", "Pocket005")
pocket6.Profile = sketch15
pocket6.Length = 2
pocket6.Reversed = True

# Sketch on XZ plane
sketch16 = body.newObject("Sketcher::SketchObject", "Sketch015")
sketch16.AttachmentSupport = (doc.getObject("XZ_Plane"), [""])
sketch16.MapMode = "FlatFace"
sketch16.AttachmentOffset = App.Placement(V(0, 0, -4), App.Rotation())
sketch16.addGeometry(Part.LineSegment(V(6.9, -109.97, 0), V(6.9, -103.97, 0)), False)
sketch16.addGeometry(Part.LineSegment(V(6.9, -103.97, 0), V(12.9, -103.97, 0)), False)
sketch16.addGeometry(Part.LineSegment(V(12.9, -103.97, 0), V(12.9, -109.97, 0)), False)
sketch16.addGeometry(Part.LineSegment(V(12.9, -109.97, 0), V(6.9, -109.97, 0)), False)
sketch16.addGeometry(Part.Circle(V(9.9, -106.97, 0), V(0, 0, 1), 1.5), False)
sketch16.addGeometry(Part.LineSegment(V(32.9, -109.97, 0), V(32.9, -103.97, 0)), False)
sketch16.addGeometry(Part.LineSegment(V(32.9, -103.97, 0), V(38.9, -103.97, 0)), False)
sketch16.addGeometry(Part.LineSegment(V(38.9, -103.97, 0), V(38.9, -109.97, 0)), False)
sketch16.addGeometry(Part.LineSegment(V(38.9, -109.97, 0), V(32.9, -109.97, 0)), False)
sketch16.addGeometry(Part.Circle(V(35.9, -106.97, 0), V(0, 0, 1), 1.5), False)
sketch16.addGeometry(Part.LineSegment(V(6.9, -12.9, 0), V(6.9, -6.9, 0)), False)
sketch16.addGeometry(Part.LineSegment(V(6.9, -6.9, 0), V(12.9, -6.9, 0)), False)
sketch16.addGeometry(Part.LineSegment(V(12.9, -6.9, 0), V(12.9, -12.9, 0)), False)
sketch16.addGeometry(Part.LineSegment(V(12.9, -12.9, 0), V(6.9, -12.9, 0)), False)
sketch16.addGeometry(Part.Circle(V(9.9, -9.9, 0), V(0, 0, 1), 1.5), False)
sketch16.addGeometry(Part.LineSegment(V(32.9, -12.9, 0), V(32.9, -6.9, 0)), False)
sketch16.addGeometry(Part.LineSegment(V(32.9, -6.9, 0), V(38.9, -6.9, 0)), False)
sketch16.addGeometry(Part.LineSegment(V(38.9, -6.9, 0), V(38.9, -12.9, 0)), False)
sketch16.addGeometry(Part.LineSegment(V(38.9, -12.9, 0), V(32.9, -12.9, 0)), False)
sketch16.addGeometry(Part.Circle(V(35.9, -9.9, 0), V(0, 0, 1), 1.5), False)
sketch16.addConstraint(Sketcher.Constraint("Coincident", 0, 2, 1, 1))
sketch16.addConstraint(Sketcher.Constraint("Coincident", 1, 2, 2, 1))
sketch16.addConstraint(Sketcher.Constraint("Coincident", 2, 2, 3, 1))
sketch16.addConstraint(Sketcher.Constraint("Coincident", 3, 2, 0, 1))
sketch16.addConstraint(Sketcher.Constraint("Coincident", 5, 2, 6, 1))
sketch16.addConstraint(Sketcher.Constraint("Coincident", 6, 2, 7, 1))
sketch16.addConstraint(Sketcher.Constraint("Coincident", 7, 2, 8, 1))
sketch16.addConstraint(Sketcher.Constraint("Coincident", 8, 2, 5, 1))
sketch16.addConstraint(Sketcher.Constraint("Coincident", 10, 2, 11, 1))
sketch16.addConstraint(Sketcher.Constraint("Coincident", 11, 2, 12, 1))
sketch16.addConstraint(Sketcher.Constraint("Coincident", 12, 2, 13, 1))
sketch16.addConstraint(Sketcher.Constraint("Coincident", 13, 2, 10, 1))
sketch16.addConstraint(Sketcher.Constraint("Coincident", 15, 2, 16, 1))
sketch16.addConstraint(Sketcher.Constraint("Coincident", 16, 2, 17, 1))
sketch16.addConstraint(Sketcher.Constraint("Coincident", 17, 2, 18, 1))
sketch16.addConstraint(Sketcher.Constraint("Coincident", 18, 2, 15, 1))
sketch16.addConstraint(Sketcher.Constraint("Vertical", 0))
sketch16.addConstraint(Sketcher.Constraint("Horizontal", 1))
sketch16.addConstraint(Sketcher.Constraint("Vertical", 2))
sketch16.addConstraint(Sketcher.Constraint("Horizontal", 3))
sketch16.addConstraint(Sketcher.Constraint("Vertical", 5))
sketch16.addConstraint(Sketcher.Constraint("Horizontal", 6))
sketch16.addConstraint(Sketcher.Constraint("Vertical", 7))
sketch16.addConstraint(Sketcher.Constraint("Horizontal", 8))
sketch16.addConstraint(Sketcher.Constraint("Vertical", 10))
sketch16.addConstraint(Sketcher.Constraint("Horizontal", 11))
sketch16.addConstraint(Sketcher.Constraint("Vertical", 12))
sketch16.addConstraint(Sketcher.Constraint("Horizontal", 13))
sketch16.addConstraint(Sketcher.Constraint("Vertical", 15))
sketch16.addConstraint(Sketcher.Constraint("Horizontal", 16))
sketch16.addConstraint(Sketcher.Constraint("Vertical", 17))
sketch16.addConstraint(Sketcher.Constraint("Horizontal", 18))
sketch16.addConstraint(Sketcher.Constraint("Equal", 4, 9))
sketch16.addConstraint(Sketcher.Constraint("Equal", 9, 14))
sketch16.addConstraint(Sketcher.Constraint("Equal", 14, 19))
sketch16.addConstraint(Sketcher.Constraint("Horizontal", 4, 3, 9, 3))
sketch16.addConstraint(Sketcher.Constraint("Horizontal", 14, 3, 19, 3))
sketch16.addConstraint(Sketcher.Constraint("Horizontal", 1, 2, 5, 2))
sketch16.addConstraint(Sketcher.Constraint("Horizontal", 3, 2, 7, 2))
sketch16.addConstraint(Sketcher.Constraint("Horizontal", 11, 2, 15, 2))
sketch16.addConstraint(Sketcher.Constraint("Horizontal", 13, 2, 17, 2))
sketch16.addConstraint(Sketcher.Constraint("Vertical", 4, 3, 14, 3))
sketch16.addConstraint(Sketcher.Constraint("Vertical", 9, 3, 19, 3))
sketch16.addConstraint(Sketcher.Constraint("Vertical", 3, 2, 10, 2))
sketch16.addConstraint(Sketcher.Constraint("Vertical", 2, 2, 11, 2))
sketch16.addConstraint(Sketcher.Constraint("Vertical", 8, 2, 15, 2))
sketch16.addConstraint(Sketcher.Constraint("Vertical", 7, 2, 16, 2))
sketch16.addConstraint(Sketcher.Constraint("Equal", 3, 6))
sketch16.addConstraint(Sketcher.Constraint("Equal", 18, 0))
sketch16.addConstraint(Sketcher.Constraint("Equal", 7, 10))
sketch16.addConstraint(Sketcher.Constraint("Diameter", 4, 3.0))
sketch16.addConstraint(Sketcher.Constraint("DistanceX", 1, 1, 1, 2, 6.0))
sketch16.addConstraint(Sketcher.Constraint("DistanceX", 4, 3, 9, 3, 26.0))
sketch16.addConstraint(Sketcher.Constraint("DistanceX", 0, 2, 4, 3, 3.0))
sketch16.addConstraint(Sketcher.Constraint("DistanceY", 4, 3, 0, 2, 3.0))
sketch16.addConstraint(Sketcher.Constraint("DistanceX", 5, 2, 9, 3, 3.0))
sketch16.addConstraint(Sketcher.Constraint("DistanceY", 14, 3, 10, 2, 3.0))
sketch16.addConstraint(Sketcher.Constraint("DistanceX", -1, 1, 4, 3, 9.9))
sketch16.addConstraint(Sketcher.Constraint("DistanceY", 14, 3, -1, 1, 9.9))
sketch16.addConstraint(Sketcher.Constraint("DistanceY", 4, 3, -1, 1, 106.97))
pad9 = body.newObject("PartDesign::Pad", "Pad008")
pad9.Profile = sketch16
pad9.Type = "TwoLengths"
pad9.Length = 2
pad9.Length2 = 3
pad9.Reversed = True

# Sketch on YZ plane
sketch17 = body.newObject("Sketcher::SketchObject", "Sketch016")
sketch17.AttachmentSupport = (doc.getObject("YZ_Plane"), [""])
sketch17.MapMode = "FlatFace"
sketch17.addGeometry(Part.LineSegment(V(1.5, -68.435, 0), V(0, -68.435, 0)), False)
sketch17.addGeometry(Part.LineSegment(V(0, -68.435, 0), V(0, -43.435, 0)), False)
sketch17.addGeometry(Part.LineSegment(V(0, -43.435, 0), V(1.5, -43.435, 0)), False)
sketch17.addGeometry(Part.LineSegment(V(1.5, -43.435, 0), V(1.5, -68.435, 0)), False)
sketch17.addConstraint(Sketcher.Constraint("Coincident", 0, 2, 1, 1))
sketch17.addConstraint(Sketcher.Constraint("Coincident", 1, 2, 2, 1))
sketch17.addConstraint(Sketcher.Constraint("Coincident", 2, 2, 3, 1))
sketch17.addConstraint(Sketcher.Constraint("Coincident", 3, 2, 0, 1))
sketch17.addConstraint(Sketcher.Constraint("Horizontal", 0))
sketch17.addConstraint(Sketcher.Constraint("Vertical", 1))
sketch17.addConstraint(Sketcher.Constraint("Horizontal", 2))
sketch17.addConstraint(Sketcher.Constraint("Vertical", 3))
sketch17.addConstraint(Sketcher.Constraint("PointOnObject", 0, 2, -2))
sketch17.addConstraint(Sketcher.Constraint("DistanceY", 1, 1, 1, 2, 25.0))
sketch17.addConstraint(Sketcher.Constraint("DistanceX", 0, 2, 0, 1, 1.5))
sketch17.addConstraint(Sketcher.Constraint("DistanceY", 0, 2, -1, 1, 68.435))
pocket7 = body.newObject("PartDesign::Pocket", "Pocket006")
pocket7.Profile = sketch17
pocket7.Length = 6.9
pocket7.Reversed = True

# Sketch on YZ plane
sketch18 = body.newObject("Sketcher::SketchObject", "Sketch017")
sketch18.AttachmentSupport = (doc.getObject("YZ_Plane"), [""])
sketch18.MapMode = "FlatFace"
sketch18.AttachmentOffset = App.Placement(V(0, 0, 337.35), App.Rotation())
sketch18.addGeometry(Part.LineSegment(V(0, -6.9, 0), V(-3, -6.9, 0)), False)
sketch18.addGeometry(Part.LineSegment(V(-3, -6.9, 0), V(-3, -109.97, 0)), False)
sketch18.addGeometry(Part.LineSegment(V(-3, -109.97, 0), V(0, -109.97, 0)), False)
sketch18.addGeometry(Part.LineSegment(V(0, -109.97, 0), V(0, -6.9, 0)), False)
sketch18.addConstraint(Sketcher.Constraint("Coincident", 0, 2, 1, 1))
sketch18.addConstraint(Sketcher.Constraint("Coincident", 1, 2, 2, 1))
sketch18.addConstraint(Sketcher.Constraint("Coincident", 2, 2, 3, 1))
sketch18.addConstraint(Sketcher.Constraint("Coincident", 3, 2, 0, 1))
sketch18.addConstraint(Sketcher.Constraint("Horizontal", 0))
sketch18.addConstraint(Sketcher.Constraint("Vertical", 1))
sketch18.addConstraint(Sketcher.Constraint("Horizontal", 2))
sketch18.addConstraint(Sketcher.Constraint("Vertical", 3))
sketch18.addConstraint(Sketcher.Constraint("PointOnObject", 2, 2, -2))
sketch18.addConstraint(Sketcher.Constraint("DistanceX", 0, 2, 0, 1, 3.0))
sketch18.addConstraint(Sketcher.Constraint("DistanceY", 1, 2, 1, 1, 103.07))
sketch18.addConstraint(Sketcher.Constraint("DistanceY", 0, 2, -1, 1, 6.9))
pocket8 = body.newObject("PartDesign::Pocket", "Pocket007")
pocket8.Profile = sketch18
pocket8.Type = "ThroughAll"

# Sketch on XZ plane
sketch19 = body.newObject("Sketcher::SketchObject", "Sketch018")
sketch19.AttachmentSupport = (doc.getObject("XZ_Plane"), [""])
sketch19.MapMode = "FlatFace"
sketch19.AttachmentOffset = App.Placement(V(0, 0, -8), App.Rotation())
sketch19.addGeometry(Part.LineSegment(V(-34.107875, -147.007594, 0), V(-34.107875, 45.075109, 0)), False)
sketch19.addGeometry(Part.LineSegment(V(-34.107875, 45.075109, 0), V(368.660639, 45.075109, 0)), False)
sketch19.addGeometry(Part.LineSegment(V(368.660639, 45.075109, 0), V(368.660639, -147.007594, 0)), False)
sketch19.addGeometry(Part.LineSegment(V(368.660639, -147.007594, 0), V(-34.107875, -147.007594, 0)), False)
sketch19.addGeometry(Part.LineSegment(V(262.17, 18.27529, 0), V(72.17, 18.27529, 0)), False)
sketch19.addGeometry(Part.LineSegment(V(72.17, 18.27529, 0), V(72.17, -30.689134, 0)), False)
sketch19.addGeometry(Part.LineSegment(V(72.17, -30.689134, 0), V(262.17, -30.689134, 0)), False)
sketch19.addGeometry(Part.LineSegment(V(262.17, -30.689134, 0), V(262.17, 18.27529, 0)), False)
sketch19.addConstraint(Sketcher.Constraint("Coincident", 0, 2, 1, 1))
sketch19.addConstraint(Sketcher.Constraint("Coincident", 1, 2, 2, 1))
sketch19.addConstraint(Sketcher.Constraint("Coincident", 2, 2, 3, 1))
sketch19.addConstraint(Sketcher.Constraint("Coincident", 3, 2, 0, 1))
sketch19.addConstraint(Sketcher.Constraint("Coincident", 4, 2, 5, 1))
sketch19.addConstraint(Sketcher.Constraint("Coincident", 5, 2, 6, 1))
sketch19.addConstraint(Sketcher.Constraint("Coincident", 6, 2, 7, 1))
sketch19.addConstraint(Sketcher.Constraint("Coincident", 7, 2, 4, 1))
sketch19.addConstraint(Sketcher.Constraint("Vertical", 0))
sketch19.addConstraint(Sketcher.Constraint("Horizontal", 1))
sketch19.addConstraint(Sketcher.Constraint("Vertical", 2))
sketch19.addConstraint(Sketcher.Constraint("Horizontal", 3))
sketch19.addConstraint(Sketcher.Constraint("Horizontal", 4))
sketch19.addConstraint(Sketcher.Constraint("Vertical", 5))
sketch19.addConstraint(Sketcher.Constraint("Horizontal", 6))
sketch19.addConstraint(Sketcher.Constraint("Vertical", 7))
sketch19.addConstraint(Sketcher.Constraint("DistanceX", 4, 2, 4, 1, 190.0))
sketch19.addConstraint(Sketcher.Constraint("DistanceX", -1, 1, 4, 2, 72.17))
sketch19.addConstraint(Sketcher.Constraint("DistanceX", 1, 1, 1, 2, 402.768514))
sketch19.addConstraint(Sketcher.Constraint("DistanceY", 0, 1, 0, 2, 192.082702))
sketch19.addConstraint(Sketcher.Constraint("DistanceY", 5, 2, 5, 1, 48.964424))
sketch19.addConstraint(Sketcher.Constraint("DistanceY", -1, 1, 0, 2, 45.075109))
sketch19.addConstraint(Sketcher.Constraint("DistanceX", -1, 1, 1, 2, 368.660639))
sketch19.addConstraint(Sketcher.Constraint("DistanceY", -1, 1, 4, 2, 18.27529))
pocket9 = body.newObject("PartDesign::Pocket", "Pocket008")
pocket9.Profile = sketch19
pocket9.Type = "ThroughAll"
pocket9.Reversed = True
doc.recompute()

chamfer = body.newObject("PartDesign::Chamfer", "Chamfer")
chamfer.Base = (pocket9, edges_at(pocket9, [(72.17, 8, -4.45), (262.17, 8, -4.45)]))
chamfer.Size = 5

# Sketch on XZ plane
sketch20 = body.newObject("Sketcher::SketchObject", "Sketch019")
sketch20.AttachmentSupport = (doc.getObject("XZ_Plane"), [""])
sketch20.MapMode = "FlatFace"
sketch20.AttachmentOffset = App.Placement(V(0, 0, -1.5), App.Rotation())
sketch20.addGeometry(Part.LineSegment(V(112.45, 0, 0), V(112.45, -8.9, 0)), False)
sketch20.addGeometry(Part.LineSegment(V(112.45, -8.9, 0), V(233.95, -8.9, 0)), False)
sketch20.addGeometry(Part.LineSegment(V(233.95, -8.9, 0), V(233.95, 0, 0)), False)
sketch20.addGeometry(Part.LineSegment(V(233.95, 0, 0), V(112.45, 0, 0)), False)
sketch20.addConstraint(Sketcher.Constraint("Coincident", 0, 2, 1, 1))
sketch20.addConstraint(Sketcher.Constraint("Coincident", 1, 2, 2, 1))
sketch20.addConstraint(Sketcher.Constraint("Coincident", 2, 2, 3, 1))
sketch20.addConstraint(Sketcher.Constraint("Coincident", 3, 2, 0, 1))
sketch20.addConstraint(Sketcher.Constraint("Vertical", 0))
sketch20.addConstraint(Sketcher.Constraint("Horizontal", 1))
sketch20.addConstraint(Sketcher.Constraint("Vertical", 2))
sketch20.addConstraint(Sketcher.Constraint("Horizontal", 3))
sketch20.addConstraint(Sketcher.Constraint("PointOnObject", 2, 2, -1))
sketch20.addConstraint(Sketcher.Constraint("DistanceX", 1, 1, 1, 2, 121.5))
sketch20.addConstraint(Sketcher.Constraint("DistanceY", 0, 2, 0, 1, 8.9))
sketch20.addConstraint(Sketcher.Constraint("DistanceX", -1, 1, 0, 2, 112.45))
pad10 = body.newObject("PartDesign::Pad", "Pad009")
pad10.Profile = sketch20
pad10.Length = 1.5

doc.recompute()
